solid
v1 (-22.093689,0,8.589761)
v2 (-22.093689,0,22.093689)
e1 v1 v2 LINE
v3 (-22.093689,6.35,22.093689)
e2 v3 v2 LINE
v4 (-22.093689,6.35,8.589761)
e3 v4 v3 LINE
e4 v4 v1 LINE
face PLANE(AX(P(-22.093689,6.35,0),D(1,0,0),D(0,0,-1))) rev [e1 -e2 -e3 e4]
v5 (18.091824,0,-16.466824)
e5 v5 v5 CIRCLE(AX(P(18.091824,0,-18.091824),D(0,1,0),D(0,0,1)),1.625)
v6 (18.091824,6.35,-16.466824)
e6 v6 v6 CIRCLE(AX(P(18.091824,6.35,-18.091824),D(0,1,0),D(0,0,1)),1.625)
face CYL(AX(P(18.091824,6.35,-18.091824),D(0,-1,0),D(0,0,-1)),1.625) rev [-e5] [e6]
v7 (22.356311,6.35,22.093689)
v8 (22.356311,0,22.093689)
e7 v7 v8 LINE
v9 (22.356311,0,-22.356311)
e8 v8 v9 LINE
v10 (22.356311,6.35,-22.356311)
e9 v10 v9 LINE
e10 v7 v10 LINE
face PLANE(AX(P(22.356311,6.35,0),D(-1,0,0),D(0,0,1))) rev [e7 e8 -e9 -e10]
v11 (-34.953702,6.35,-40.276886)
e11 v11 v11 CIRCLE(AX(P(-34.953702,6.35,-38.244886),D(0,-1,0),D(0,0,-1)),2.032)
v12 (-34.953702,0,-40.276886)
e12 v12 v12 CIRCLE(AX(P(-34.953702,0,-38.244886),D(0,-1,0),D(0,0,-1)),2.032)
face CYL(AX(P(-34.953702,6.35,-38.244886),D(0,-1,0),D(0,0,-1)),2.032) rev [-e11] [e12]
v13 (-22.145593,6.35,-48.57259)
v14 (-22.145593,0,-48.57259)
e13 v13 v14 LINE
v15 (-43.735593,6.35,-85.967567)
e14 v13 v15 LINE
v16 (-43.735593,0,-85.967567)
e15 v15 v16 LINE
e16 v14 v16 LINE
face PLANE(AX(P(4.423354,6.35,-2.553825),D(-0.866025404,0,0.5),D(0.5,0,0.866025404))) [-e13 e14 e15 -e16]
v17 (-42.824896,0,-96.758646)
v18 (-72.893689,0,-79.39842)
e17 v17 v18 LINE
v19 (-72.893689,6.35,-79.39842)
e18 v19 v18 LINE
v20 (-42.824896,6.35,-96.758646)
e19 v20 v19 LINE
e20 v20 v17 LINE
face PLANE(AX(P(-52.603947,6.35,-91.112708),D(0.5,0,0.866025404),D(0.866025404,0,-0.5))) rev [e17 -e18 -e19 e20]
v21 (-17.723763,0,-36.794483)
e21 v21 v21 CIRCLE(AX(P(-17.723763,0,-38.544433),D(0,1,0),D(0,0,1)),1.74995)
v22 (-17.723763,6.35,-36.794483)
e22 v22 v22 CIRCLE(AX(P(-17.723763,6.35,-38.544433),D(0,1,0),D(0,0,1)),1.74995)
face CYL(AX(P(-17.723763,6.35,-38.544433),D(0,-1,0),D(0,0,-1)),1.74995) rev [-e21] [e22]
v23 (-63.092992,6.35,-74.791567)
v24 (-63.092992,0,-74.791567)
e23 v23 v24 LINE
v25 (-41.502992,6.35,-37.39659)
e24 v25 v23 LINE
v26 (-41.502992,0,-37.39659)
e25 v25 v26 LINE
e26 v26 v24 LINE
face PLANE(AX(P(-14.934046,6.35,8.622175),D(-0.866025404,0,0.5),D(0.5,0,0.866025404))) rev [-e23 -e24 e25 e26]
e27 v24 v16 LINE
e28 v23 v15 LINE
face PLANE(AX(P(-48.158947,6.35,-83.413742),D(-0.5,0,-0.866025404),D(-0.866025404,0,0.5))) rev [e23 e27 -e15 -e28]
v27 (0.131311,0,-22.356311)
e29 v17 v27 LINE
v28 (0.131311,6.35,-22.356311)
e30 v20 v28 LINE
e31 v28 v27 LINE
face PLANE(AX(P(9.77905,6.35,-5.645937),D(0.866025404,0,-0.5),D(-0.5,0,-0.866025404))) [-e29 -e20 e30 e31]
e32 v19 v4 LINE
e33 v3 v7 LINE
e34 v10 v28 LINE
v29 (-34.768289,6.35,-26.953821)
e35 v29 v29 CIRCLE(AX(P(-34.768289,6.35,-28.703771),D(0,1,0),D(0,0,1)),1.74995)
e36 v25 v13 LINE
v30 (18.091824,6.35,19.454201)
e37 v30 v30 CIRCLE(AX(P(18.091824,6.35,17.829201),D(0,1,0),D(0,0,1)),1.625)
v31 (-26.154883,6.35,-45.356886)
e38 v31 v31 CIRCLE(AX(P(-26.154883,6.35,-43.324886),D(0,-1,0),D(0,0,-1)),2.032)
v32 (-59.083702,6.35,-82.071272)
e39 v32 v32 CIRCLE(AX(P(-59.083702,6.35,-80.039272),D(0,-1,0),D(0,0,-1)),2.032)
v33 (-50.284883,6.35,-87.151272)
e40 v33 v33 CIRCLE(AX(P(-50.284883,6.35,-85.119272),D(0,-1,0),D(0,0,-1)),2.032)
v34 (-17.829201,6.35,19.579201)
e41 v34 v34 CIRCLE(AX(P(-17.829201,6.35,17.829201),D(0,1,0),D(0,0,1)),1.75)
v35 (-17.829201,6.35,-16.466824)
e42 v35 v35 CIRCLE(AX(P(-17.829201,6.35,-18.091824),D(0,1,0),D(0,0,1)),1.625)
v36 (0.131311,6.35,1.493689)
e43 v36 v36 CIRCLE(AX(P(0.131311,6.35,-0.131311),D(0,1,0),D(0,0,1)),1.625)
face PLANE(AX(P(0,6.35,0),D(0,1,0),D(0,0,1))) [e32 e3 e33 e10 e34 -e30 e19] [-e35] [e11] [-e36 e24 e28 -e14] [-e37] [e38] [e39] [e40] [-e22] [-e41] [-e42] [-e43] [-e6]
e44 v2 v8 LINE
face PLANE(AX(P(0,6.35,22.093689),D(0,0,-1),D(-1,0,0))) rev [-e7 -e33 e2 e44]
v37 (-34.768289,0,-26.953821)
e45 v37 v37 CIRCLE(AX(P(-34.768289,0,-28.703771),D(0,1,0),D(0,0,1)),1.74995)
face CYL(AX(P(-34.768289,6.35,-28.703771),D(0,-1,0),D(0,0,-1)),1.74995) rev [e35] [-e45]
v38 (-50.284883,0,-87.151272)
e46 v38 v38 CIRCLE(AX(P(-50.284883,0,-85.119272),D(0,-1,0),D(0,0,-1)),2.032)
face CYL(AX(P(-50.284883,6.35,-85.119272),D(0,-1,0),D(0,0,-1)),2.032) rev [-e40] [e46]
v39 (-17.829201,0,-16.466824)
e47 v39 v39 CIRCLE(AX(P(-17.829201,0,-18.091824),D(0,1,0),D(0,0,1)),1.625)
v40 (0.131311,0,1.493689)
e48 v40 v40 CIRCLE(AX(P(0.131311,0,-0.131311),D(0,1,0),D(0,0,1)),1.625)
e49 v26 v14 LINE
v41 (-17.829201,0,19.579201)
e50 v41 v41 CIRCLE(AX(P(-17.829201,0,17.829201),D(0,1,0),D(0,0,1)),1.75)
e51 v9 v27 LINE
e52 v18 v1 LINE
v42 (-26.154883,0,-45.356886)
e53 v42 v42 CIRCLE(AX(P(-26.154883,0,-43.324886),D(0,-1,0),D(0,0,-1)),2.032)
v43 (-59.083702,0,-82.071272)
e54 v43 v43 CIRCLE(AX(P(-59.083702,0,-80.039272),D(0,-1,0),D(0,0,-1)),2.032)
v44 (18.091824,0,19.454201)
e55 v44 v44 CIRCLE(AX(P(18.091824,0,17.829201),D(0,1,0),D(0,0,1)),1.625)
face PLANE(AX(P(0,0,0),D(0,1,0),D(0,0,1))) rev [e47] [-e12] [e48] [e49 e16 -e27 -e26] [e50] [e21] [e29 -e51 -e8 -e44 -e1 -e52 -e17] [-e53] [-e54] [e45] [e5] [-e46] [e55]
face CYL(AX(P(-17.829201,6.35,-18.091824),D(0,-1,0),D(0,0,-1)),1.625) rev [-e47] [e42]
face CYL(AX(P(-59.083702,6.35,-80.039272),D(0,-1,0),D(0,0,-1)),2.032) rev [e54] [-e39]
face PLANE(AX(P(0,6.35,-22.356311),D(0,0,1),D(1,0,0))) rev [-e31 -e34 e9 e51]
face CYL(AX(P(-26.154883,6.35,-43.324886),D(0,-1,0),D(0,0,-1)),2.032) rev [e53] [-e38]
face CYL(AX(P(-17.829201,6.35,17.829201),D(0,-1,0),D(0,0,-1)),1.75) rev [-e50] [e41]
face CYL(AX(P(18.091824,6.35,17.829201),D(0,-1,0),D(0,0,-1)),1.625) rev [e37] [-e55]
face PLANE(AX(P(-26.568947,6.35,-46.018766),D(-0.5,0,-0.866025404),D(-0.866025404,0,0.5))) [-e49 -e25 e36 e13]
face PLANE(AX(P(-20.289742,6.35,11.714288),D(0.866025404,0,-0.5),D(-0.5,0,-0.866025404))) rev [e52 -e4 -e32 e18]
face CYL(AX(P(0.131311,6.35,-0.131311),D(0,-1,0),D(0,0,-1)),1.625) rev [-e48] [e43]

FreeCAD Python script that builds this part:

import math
import FreeCAD as App
import Part
import Sketcher
from FreeCAD import Vector
Q = App.Units.Quantity

doc = App.newDocument("Part")
params = doc.addObject("Spreadsheet::Sheet", "Params")
for row, (alias, value) in enumerate([
    ("sketch1_length", "4 in"),
    ("sketch1_width", "1.75 in"),
    ("sketch1_width2", "0.875 in"),
    ("pad1_length", "0.25 in"),
    ("sketch2_radius", "0.08 in"),
    ("sketch2_length", "1.7 in"),
    ("sketch2_length2", "0.88 in"),
    ("sketch2_height", "0.04 in"),
    ("sketch2_width", "0.04 in"),
], start=1):
    params.set(f"A{row}", alias)
    params.set(f"B{row}", "=" + value)
    params.setAlias(f"B{row}", alias)

body = doc.addObject("PartDesign::Body", "Body")

# Sketch on XZ plane
sketch1 = body.newObject("Sketcher::SketchObject", "Sketch")
sketch1.AttachmentSupport = (doc.getObject("XZ_Plane"), [""])
sketch1.MapMode = "FlatFace"
sketch1.addGeometry([
    Part.LineSegment(Vector(22.356311, 22.093689, 0), Vector(22.356311, -22.356311, 0)),  # 0
    Part.LineSegment(Vector(22.356311, -22.356311, 0), Vector(0.131311, -22.356311, 0)),  # 1
    Part.LineSegment(Vector(0.131311, -22.356311, 0), Vector(-42.824896, -96.758646, 0)),  # 2
    Part.LineSegment(Vector(-42.824896, -96.758646, 0), Vector(-72.893689, -79.39842, 0)),  # 3
    Part.LineSegment(Vector(-72.893689, -79.39842, 0), Vector(-22.093689, 8.589761, 0)),  # 4
    Part.LineSegment(Vector(-22.093689, 8.589761, 0), Vector(-22.093689, 22.093689, 0)),  # 5
    Part.LineSegment(Vector(-22.093689, 22.093689, 0), Vector(22.356311, 22.093689, 0)),  # 6
    Part.Circle(Vector(-17.829201, 17.829201, 0), Vector(0, 0, 1), 1.75),  # 7
    Part.Circle(Vector(18.091824, 17.829201, 0), Vector(0, 0, 1), 1.625),  # 8
    Part.Circle(Vector(0.131311, -0.131311, 0), Vector(0, 0, 1), 1.625),  # 9
    Part.Circle(Vector(-17.829201, -18.091824, 0), Vector(0, 0, 1), 1.625),  # 10
    Part.Circle(Vector(-34.768289, -28.703771, 0), Vector(0, 0, 1), 1.74995),  # 11
    Part.Circle(Vector(-17.723763, -38.544433, 0), Vector(0, 0, 1), 1.74995),  # 12
    Part.Circle(Vector(18.091824, -18.091824, 0), Vector(0, 0, 1), 1.625),  # 13
], False)
sketch1.addConstraint([
    Sketcher.Constraint("Coincident", 0, 2, 1, 1),
    Sketcher.Constraint("Coincident", 1, 2, 2, 1),
    Sketcher.Constraint("Coincident", 2, 2, 3, 1),
    Sketcher.Constraint("Coincident", 3, 2, 4, 1),
    Sketcher.Constraint("Coincident", 4, 2, 5, 1),
    Sketcher.Constraint("Coincident", 5, 2, 6, 1),
    Sketcher.Constraint("Coincident", 6, 2, 0, 1),
    Sketcher.Constraint("Vertical", 0),
    Sketcher.Constraint("Horizontal", 1),
    Sketcher.Constraint("Vertical", 5),
    Sketcher.Constraint("Horizontal", 6),
    Sketcher.Constraint("Equal", 8, 9),
    Sketcher.Constraint("Equal", 9, 10),
    Sketcher.Constraint("Equal", 11, 12),
    Sketcher.Constraint("Equal", 10, 13),
    Sketcher.Constraint("Perpendicular", 2, 3),
    Sketcher.Constraint("Perpendicular", 3, 4),
    Sketcher.Constraint("Horizontal", 7, 3, 8, 3),
    Sketcher.Constraint("Horizontal", 10, 3, 13, 3),
    Sketcher.Constraint("Vertical", 7, 3, 10, 3),
    Sketcher.Constraint("Vertical", 8, 3, 13, 3),
    Sketcher.Constraint("Vertical", 9, 3, 1, 2),
    Sketcher.Constraint("Equal", 6, 0),
    Sketcher.Constraint("Distance", 4, Q("4 in")),
    Sketcher.Constraint("Angle", 2, Q("-120 deg")),
    Sketcher.Constraint("DistanceX", 6, 1, 6, 2, Q("1.75 in")),
    Sketcher.Constraint("Diameter", 7, Q("3.5 mm")),
    Sketcher.Constraint("Diameter", 8, Q("3.25 mm")),
    Sketcher.Constraint("Diameter", 11, Q("3.4999 mm")),
    Sketcher.Constraint("DistanceX", 1, 2, 1, 1, Q("0.875 in")),
    Sketcher.Constraint("DistanceX", 11, 3, 9, 3, Q("1.374 in")),
    Sketcher.Constraint("DistanceY", 0, 2, 9, 3, Q("0.875 in")),
    Sketcher.Constraint("DistanceY", 11, 3, 9, 3, Q("1.1249 in")),
    Sketcher.Constraint("DistanceX", 7, 3, -1, 1, Q("17.829201 mm")),
    Sketcher.Constraint("DistanceY", -1, 1, 7, 3, Q("17.829201 mm")),
    Sketcher.Constraint("Distance", 3, Q("34.720451 mm")),
    Sketcher.Constraint("DistanceX", -1, 1, 9, 3, Q("0.131311 mm")),
    Sketcher.Constraint("DistanceY", 9, 3, -1, 1, Q("0.131311 mm")),
    Sketcher.Constraint("DistanceY", 12, 3, 11, 3, Q("9.840662 mm")),
    Sketcher.Constraint("DistanceX", 10, 3, 12, 3, Q("0.105438 mm")),
    Sketcher.Constraint("DistanceY", 12, 3, 10, 3, Q("20.452609 mm")),
    Sketcher.Constraint("DistanceX", -1, 1, 8, 3, Q("18.091824 mm")),
])
sketch1.setExpression("Constraints[23]", "Params.sketch1_length")
sketch1.setExpression("Constraints[25]", "Params.sketch1_width")
sketch1.setExpression("Constraints[29]", "Params.sketch1_width2")
pad1 = body.newObject("PartDesign::Pad", "Pad")
pad1.Profile = sketch1
pad1.setExpression("Length", "Params.pad1_length")
pad1.Reversed = True

# Sketch on XZ plane
sketch2 = body.newObject("Sketcher::SketchObject", "Sketch001")
sketch2.AttachmentSupport = (doc.getObject("XZ_Plane"), [""])
sketch2.MapMode = "FlatFace"
sketch2.addGeometry([
    Part.ArcOfCircle(Part.Circle(Vector(-50.284883, -85.119272, 0), Vector(0, 0, 1), 2.032), math.radians(60), math.radians(150)),  # 0
    Part.ArcOfCircle(Part.Circle(Vector(-50.284883, -85.119272, 0), Vector(0, 0, 1), 2.032), math.radians(150), math.radians(360)),  # 1
    Part.ArcOfCircle(Part.Circle(Vector(-50.284883, -85.119272, 0), Vector(0, 0, 1), 2.032), math.radians(0), math.radians(60)),  # 2
    Part.ArcOfCircle(Part.Circle(Vector(-59.083702, -80.039272, 0), Vector(0, 0, 1), 2.032), math.radians(60), math.radians(330)),  # 3
    Part.ArcOfCircle(Part.Circle(Vector(-59.083702, -80.039272, 0), Vector(0, 0, 1), 2.032), math.radians(-30), math.radians(0)),  # 4
    Part.ArcOfCircle(Part.Circle(Vector(-59.083702, -80.039272, 0), Vector(0, 0, 1), 2.032), math.radians(0), math.radians(60)),  # 5
    Part.ArcOfCircle(Part.Circle(Vector(-26.154883, -43.324886, 0), Vector(0, 0, 1), 2.032), math.radians(150), math.radians(240)),  # 6
    Part.ArcOfCircle(Part.Circle(Vector(-26.154883, -43.324886, 0), Vector(0, 0, 1), 2.032), math.radians(-120), math.radians(0)),  # 7
    Part.ArcOfCircle(Part.Circle(Vector(-26.154883, -43.324886, 0), Vector(0, 0, 1), 2.032), math.radians(0), math.radians(150)),  # 8
    Part.ArcOfCircle(Part.Circle(Vector(-34.953702, -38.244886, 0), Vector(0, 0, 1), 2.032), math.radians(0), math.radians(240)),  # 9
    Part.ArcOfCircle(Part.Circle(Vector(-34.953702, -38.244886, 0), Vector(0, 0, 1), 2.032), math.radians(-120), math.radians(-30)),  # 10
    Part.ArcOfCircle(Part.Circle(Vector(-34.953702, -38.244886, 0), Vector(0, 0, 1), 2.032), math.radians(-30), math.radians(0)),  # 11
    Part.Circle(Vector(-17.723763, -38.544433, 0), Vector(0, 0, 1), 1.74995),  # 12
    Part.LineSegment(Vector(-43.735593, -85.967567, 0), Vector(-22.145593, -48.57259, 0)),  # 13
    Part.LineSegment(Vector(-22.145593, -48.57259, 0), Vector(-41.502992, -37.39659, 0)),  # 14
    Part.LineSegment(Vector(-41.502992, -37.39659, 0), Vector(-63.092992, -74.791567, 0)),  # 15
    Part.LineSegment(Vector(-63.092992, -74.791567, 0), Vector(-43.735593, -85.967567, 0)),  # 16
], False)
sketch2.addConstraint([
    Sketcher.Constraint("Tangent", 0, 2, 1, 1),
    Sketcher.Constraint("Tangent", 1, 2, 2, 1),
    Sketcher.Constraint("Tangent", 2, 2, 0, 1),
    Sketcher.Constraint("Tangent", 3, 2, 4, 1),
    Sketcher.Constraint("Tangent", 4, 2, 5, 1),
    Sketcher.Constraint("Tangent", 5, 2, 3, 1),
    Sketcher.Constraint("Tangent", 6, 2, 7, 1),
    Sketcher.Constraint("Tangent", 7, 2, 8, 1),
    Sketcher.Constraint("Tangent", 8, 2, 6, 1),
    Sketcher.Constraint("Tangent", 9, 2, 10, 1),
    Sketcher.Constraint("Tangent", 10, 2, 11, 1),
    Sketcher.Constraint("Tangent", 11, 2, 9, 1),
    Sketcher.Constraint("Coincident", 13, 2, 14, 1),
    Sketcher.Constraint("Coincident", 14, 2, 15, 1),
    Sketcher.Constraint("Coincident", 15, 2, 16, 1),
    Sketcher.Constraint("Coincident", 16, 2, 13, 1),
    Sketcher.Constraint("Equal", 2, 3),
    Sketcher.Constraint("Equal", 5, 6),
    Sketcher.Constraint("Equal", 8, 9),
    Sketcher.Constraint("Perpendicular", 13, 14),
    Sketcher.Constraint("Perpendicular", 14, 15),
    Sketcher.Constraint("Perpendicular", 15, 16),
    Sketcher.Constraint("Horizontal", 2, 3, 1, 2),
    Sketcher.Constraint("Horizontal", 5, 3, 4, 2),
    Sketcher.Constraint("Horizontal", 8, 3, 7, 2),
    Sketcher.Constraint("Horizontal", 10, 3, 11, 2),
    Sketcher.Constraint("Radius", 0, Q("0.08 in")),
    Sketcher.Constraint("Angle", 13, Q("60 deg")),
    Sketcher.Constraint("Distance", 13, Q("1.7 in")),
    Sketcher.Constraint("DistanceY", 0, 3, 3, 3, Q("0.2 in")),
    Sketcher.Constraint("DistanceY", 8, 3, 9, 3, Q("0.2 in")),
    Sketcher.Constraint("DistanceY", 6, 2, 9, 2, Q("0.2 in")),
    Sketcher.Constraint("Distance", 14, Q("0.88 in")),
    Sketcher.Constraint("Diameter", 12, Q("3.4999 mm")),
    Sketcher.Constraint("DistanceX", 1, 3, 6, 3, Q("0.95 in")),
    Sketcher.Constraint("DistanceX", 5, 3, 9, 3, Q("0.95 in")),
    Sketcher.Constraint("DistanceY", 0, 3, 0, 2, Q("0.04 in")),
    Sketcher.Constraint("DistanceX", 2, 2, 1, 2, Q("0.04 in")),
    Sketcher.Constraint("DistanceY", 3, 2, 5, 3, Q("0.04 in")),
    Sketcher.Constraint("DistanceX", 5, 3, 5, 2, Q("0.04 in")),
    Sketcher.Constraint("DistanceX", 6, 2, 7, 3, Q("0.04 in")),
    Sketcher.Constraint("DistanceY", 8, 3, 8, 2, Q("0.04 in")),
    Sketcher.Constraint("DistanceY", 10, 2, 9, 3, Q("0.04 in")),
    Sketcher.Constraint("DistanceX", 3, 3, -1, 1, Q("59.083702 mm")),
    Sketcher.Constraint("DistanceY", 0, 3, -1, 1, Q("85.119272 mm")),
    Sketcher.Constraint("DistanceY", 6, 2, -1, 1, Q("45.084649 mm")),
    Sketcher.Constraint("DistanceY", 13, 2, -1, 1, Q("48.57259 mm")),
    Sketcher.Constraint("DistanceX", 3, 3, 0, 3, Q("8.798818 mm")),
    Sketcher.Constraint("DistanceX", 6, 3, 12, 3, Q("8.431121 mm")),
    Sketcher.Constraint("DistanceX", 7, 2, 13, 2, Q("1.977291 mm")),
    Sketcher.Constraint("DistanceY", 12, 3, -1, 1, Q("38.544433 mm")),
])
sketch2.setExpression("Constraints[26]", "Params.sketch2_radius")
sketch2.setExpression("Constraints[28]", "Params.sketch2_length")
sketch2.setExpression("Constraints[32]", "Params.sketch2_length2")
sketch2.setExpression("Constraints[36]", "Params.sketch2_height")
sketch2.setExpression("Constraints[39]", "Params.sketch2_width")
pocket1 = body.newObject("PartDesign::Pocket", "Pocket")
pocket1.Profile = sketch2
pocket1.Type = "ThroughAll"

doc.recompute()
